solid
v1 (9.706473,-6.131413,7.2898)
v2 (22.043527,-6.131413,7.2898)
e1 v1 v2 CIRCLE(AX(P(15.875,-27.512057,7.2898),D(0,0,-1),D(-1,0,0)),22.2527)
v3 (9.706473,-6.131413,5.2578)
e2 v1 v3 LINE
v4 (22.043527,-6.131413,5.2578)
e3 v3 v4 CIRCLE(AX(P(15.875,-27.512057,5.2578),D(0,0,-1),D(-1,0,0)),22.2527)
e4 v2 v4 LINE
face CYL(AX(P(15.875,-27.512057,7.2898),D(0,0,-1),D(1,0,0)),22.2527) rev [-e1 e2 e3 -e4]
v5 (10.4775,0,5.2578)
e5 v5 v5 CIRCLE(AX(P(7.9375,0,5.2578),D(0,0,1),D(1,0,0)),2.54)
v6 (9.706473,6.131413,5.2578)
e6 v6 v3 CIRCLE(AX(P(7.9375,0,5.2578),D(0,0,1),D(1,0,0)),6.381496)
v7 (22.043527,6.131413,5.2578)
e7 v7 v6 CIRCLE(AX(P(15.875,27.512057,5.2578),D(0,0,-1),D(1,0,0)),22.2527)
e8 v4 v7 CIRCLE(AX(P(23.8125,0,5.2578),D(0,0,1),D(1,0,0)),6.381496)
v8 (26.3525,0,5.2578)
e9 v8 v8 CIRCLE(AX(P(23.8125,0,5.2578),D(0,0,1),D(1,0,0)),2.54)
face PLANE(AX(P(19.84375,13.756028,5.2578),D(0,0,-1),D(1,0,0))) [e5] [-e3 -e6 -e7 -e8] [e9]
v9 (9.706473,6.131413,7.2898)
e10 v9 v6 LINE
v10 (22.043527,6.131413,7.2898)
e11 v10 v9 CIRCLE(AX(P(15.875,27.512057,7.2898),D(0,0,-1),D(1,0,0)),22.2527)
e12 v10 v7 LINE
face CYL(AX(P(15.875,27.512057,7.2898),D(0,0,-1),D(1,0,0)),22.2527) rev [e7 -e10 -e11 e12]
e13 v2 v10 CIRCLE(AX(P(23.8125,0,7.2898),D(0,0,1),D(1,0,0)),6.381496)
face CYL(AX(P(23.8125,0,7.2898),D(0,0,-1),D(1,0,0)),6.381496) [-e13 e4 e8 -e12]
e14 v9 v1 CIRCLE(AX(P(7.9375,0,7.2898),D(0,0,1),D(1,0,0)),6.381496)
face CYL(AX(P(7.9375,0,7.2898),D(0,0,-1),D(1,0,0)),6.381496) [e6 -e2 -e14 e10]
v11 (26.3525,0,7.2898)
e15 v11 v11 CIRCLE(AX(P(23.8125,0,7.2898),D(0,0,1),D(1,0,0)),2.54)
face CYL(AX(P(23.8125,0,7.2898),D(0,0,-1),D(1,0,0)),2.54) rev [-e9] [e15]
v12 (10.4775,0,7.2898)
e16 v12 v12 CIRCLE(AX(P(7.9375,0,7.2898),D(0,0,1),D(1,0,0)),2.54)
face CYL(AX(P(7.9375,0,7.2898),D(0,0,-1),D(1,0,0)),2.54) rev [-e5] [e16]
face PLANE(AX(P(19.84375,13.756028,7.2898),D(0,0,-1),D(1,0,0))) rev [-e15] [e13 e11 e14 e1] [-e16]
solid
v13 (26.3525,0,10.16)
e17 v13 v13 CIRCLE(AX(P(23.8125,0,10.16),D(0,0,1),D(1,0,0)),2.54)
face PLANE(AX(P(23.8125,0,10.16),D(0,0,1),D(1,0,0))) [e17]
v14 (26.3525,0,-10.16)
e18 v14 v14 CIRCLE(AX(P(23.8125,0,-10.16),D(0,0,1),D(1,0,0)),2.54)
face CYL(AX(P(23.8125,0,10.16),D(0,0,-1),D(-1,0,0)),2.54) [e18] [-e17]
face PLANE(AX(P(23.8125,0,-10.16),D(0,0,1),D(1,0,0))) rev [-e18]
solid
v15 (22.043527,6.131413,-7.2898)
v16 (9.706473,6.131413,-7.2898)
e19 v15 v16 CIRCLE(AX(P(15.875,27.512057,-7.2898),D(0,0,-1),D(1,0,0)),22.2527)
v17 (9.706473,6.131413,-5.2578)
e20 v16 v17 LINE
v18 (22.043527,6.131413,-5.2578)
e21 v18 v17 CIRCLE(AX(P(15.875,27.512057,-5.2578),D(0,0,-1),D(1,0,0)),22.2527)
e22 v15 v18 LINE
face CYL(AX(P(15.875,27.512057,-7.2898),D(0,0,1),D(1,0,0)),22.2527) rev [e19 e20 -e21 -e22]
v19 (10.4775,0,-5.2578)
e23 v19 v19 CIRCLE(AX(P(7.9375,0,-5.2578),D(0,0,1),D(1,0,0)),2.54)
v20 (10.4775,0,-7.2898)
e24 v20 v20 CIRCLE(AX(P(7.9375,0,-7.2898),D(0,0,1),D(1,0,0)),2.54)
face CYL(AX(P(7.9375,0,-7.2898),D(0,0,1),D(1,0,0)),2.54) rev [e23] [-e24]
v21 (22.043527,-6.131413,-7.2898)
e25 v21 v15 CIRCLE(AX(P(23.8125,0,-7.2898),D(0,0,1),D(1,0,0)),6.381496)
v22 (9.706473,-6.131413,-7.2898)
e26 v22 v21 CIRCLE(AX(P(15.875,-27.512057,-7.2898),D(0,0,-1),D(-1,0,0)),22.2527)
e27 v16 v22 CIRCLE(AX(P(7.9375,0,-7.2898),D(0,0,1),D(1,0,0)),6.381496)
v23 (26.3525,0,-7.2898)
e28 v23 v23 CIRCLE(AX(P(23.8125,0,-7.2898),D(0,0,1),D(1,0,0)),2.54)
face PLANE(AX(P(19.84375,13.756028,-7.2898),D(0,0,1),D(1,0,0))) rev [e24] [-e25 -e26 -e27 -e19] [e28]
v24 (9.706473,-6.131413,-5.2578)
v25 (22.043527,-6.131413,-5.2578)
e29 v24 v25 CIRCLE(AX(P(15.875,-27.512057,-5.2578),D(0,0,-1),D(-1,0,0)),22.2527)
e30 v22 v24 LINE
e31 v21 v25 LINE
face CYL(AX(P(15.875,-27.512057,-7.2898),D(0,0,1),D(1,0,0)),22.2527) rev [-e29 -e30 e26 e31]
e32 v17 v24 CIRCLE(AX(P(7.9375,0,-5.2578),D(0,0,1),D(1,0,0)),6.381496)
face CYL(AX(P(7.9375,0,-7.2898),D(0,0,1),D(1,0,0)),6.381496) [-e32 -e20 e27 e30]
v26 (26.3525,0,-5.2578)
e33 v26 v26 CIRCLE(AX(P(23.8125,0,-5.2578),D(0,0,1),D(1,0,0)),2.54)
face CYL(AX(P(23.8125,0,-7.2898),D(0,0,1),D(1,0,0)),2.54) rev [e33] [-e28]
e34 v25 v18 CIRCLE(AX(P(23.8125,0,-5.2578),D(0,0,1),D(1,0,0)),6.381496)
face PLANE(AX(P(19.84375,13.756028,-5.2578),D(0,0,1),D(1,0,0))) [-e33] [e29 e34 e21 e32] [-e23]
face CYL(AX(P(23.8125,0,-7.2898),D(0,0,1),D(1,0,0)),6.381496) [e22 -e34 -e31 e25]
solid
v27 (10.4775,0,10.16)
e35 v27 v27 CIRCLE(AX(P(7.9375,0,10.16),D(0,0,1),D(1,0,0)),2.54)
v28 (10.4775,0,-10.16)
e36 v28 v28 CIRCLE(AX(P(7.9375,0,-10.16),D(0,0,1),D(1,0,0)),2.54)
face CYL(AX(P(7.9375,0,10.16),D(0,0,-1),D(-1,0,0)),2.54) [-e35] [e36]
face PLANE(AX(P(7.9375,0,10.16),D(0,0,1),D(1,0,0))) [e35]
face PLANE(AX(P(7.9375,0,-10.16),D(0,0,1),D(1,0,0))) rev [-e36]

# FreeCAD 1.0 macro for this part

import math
import FreeCAD as App
import Part
import Sketcher
Q = App.Units.Quantity

doc = App.newDocument("Part")
body = doc.addObject("PartDesign::Body", "Body")

# Sketch on XY plane
sketch1 = doc.addObject("Sketcher::SketchObject", "Sketch")
body.addObject(sketch1)
sketch1.AttachmentSupport = (doc.XY_Plane, [""])
sketch1.MapMode = "FlatFace"
sketch1.addGeometry([
    Part.Circle(App.Vector(-7.9, 0, 0), App.Vector(0, 0, 1), 5.1),
    Part.Circle(App.Vector(-7.9, 0, 0), App.Vector(0, 0, 1), 2.6),
], False)
sketch1.addConstraint([
    Sketcher.Constraint("Coincident", 1, 3, 0, 3),
    Sketcher.Constraint("PointOnObject", 0, 3, -1),
    Sketcher.Constraint("Diameter", 0, Q("0.4 in")),
    Sketcher.Constraint("Diameter", 1, Q("0.202 in")),
    Sketcher.Constraint("DistanceX", 0, 3, -1, 1, Q("0.3125 in")),
])
pad1 = doc.addObject("PartDesign::Pad", "Pad")
body.addObject(pad1)
pad1.Profile = sketch1
pad1.Length = Q("0.25 in")
pad1.Midplane = True
body2 = doc.addObject("PartDesign::Body", "Body001")

# Sketch on XY plane
sketch2 = doc.addObject("Sketcher::SketchObject", "Sketch001")
body2.addObject(sketch2)
sketch2.AttachmentSupport = (doc.getObject("XY_Plane001"), [""])
sketch2.MapMode = "FlatFace"
sketch2.addGeometry([
    Part.Circle(App.Vector(7.9, 0, 0), App.Vector(0, 0, 1), 5.1),
    Part.Circle(App.Vector(7.9, 0, 0), App.Vector(0, 0, 1), 2.6),
], False)
sketch2.addConstraint([
    Sketcher.Constraint("Coincident", 1, 3, 0, 3),
    Sketcher.Constraint("PointOnObject", 0, 3, -1),
    Sketcher.Constraint("Diameter", 0, Q("0.4 in")),
    Sketcher.Constraint("Diameter", 1, Q("0.202 in")),
    Sketcher.Constraint("DistanceX", -1, 1, 0, 3, Q("0.3125 in")),
])
pad2 = doc.addObject("PartDesign::Pad", "Pad001")
body2.addObject(pad2)
pad2.Profile = sketch2
pad2.Length = Q("0.25 in")
pad2.Midplane = True
body3 = doc.addObject("PartDesign::Body", "Body002")

# Sketch on XY plane
sketch3 = doc.addObject("Sketcher::SketchObject", "Sketch002")
body3.addObject(sketch3)
sketch3.AttachmentSupport = (doc.getObject("XY_Plane002"), [""])
sketch3.MapMode = "FlatFace"
sketch3.AttachmentOffset = App.Placement(App.Vector(0, 0, 0.125 * 25.4), App.Rotation())
sketch3.addGeometry([
    Part.ArcOfCircle(Part.Circle(App.Vector(-7.9, 0, 0), App.Vector(0, 0, 1), 7.3), math.radians(74), math.radians(286)),  # 0
    Part.ArcOfCircle(Part.Circle(App.Vector(0, -28.4, 0), App.Vector(0, 0, 1), 22.3), math.radians(74), math.radians(106)),  # 1
    Part.ArcOfCircle(Part.Circle(App.Vector(7.9, 0, 0), App.Vector(0, 0, 1), 7.3), math.radians(-106), math.radians(106)),  # 2
    Part.ArcOfCircle(Part.Circle(App.Vector(0, 28.4, 0), App.Vector(0, 0, 1), 22.3), math.radians(-106), math.radians(-74)),  # 3
    Part.Circle(App.Vector(-7.9, 0, 0), App.Vector(0, 0, 1), 2.5),  # 4
    Part.Circle(App.Vector(7.9, 0, 0), App.Vector(0, 0, 1), 2.5),  # 5
], False)
sketch3.addConstraint([
    Sketcher.Constraint("Tangent", 0, 2, 1, 2),
    Sketcher.Constraint("Tangent", 1, 1, 2, 1),
    Sketcher.Constraint("Tangent", 2, 2, 3, 2),
    Sketcher.Constraint("Tangent", 3, 1, 0, 1),
    Sketcher.Constraint("Coincident", 4, 3, 0, 3),
    Sketcher.Constraint("Coincident", 5, 3, 2, 3),
    Sketcher.Constraint("Equal", 0, 2),
    Sketcher.Constraint("Equal", 1, 3),
    Sketcher.Constraint("Equal", 4, 5),
    Sketcher.Constraint("Symmetric", 0, 3, 2, 3, -1, 1),
    Sketcher.Constraint("PointOnObject", 0, 3, -1),
    Sketcher.Constraint("Diameter", 4, Q("0.2 in")),
    Sketcher.Constraint("Radius", 0, Q("0.2855 in")),
    Sketcher.Constraint("Radius", 1, 22.2527),
    Sketcher.Constraint("DistanceX", 0, 3, -1, 1, Q("0.3125 in")),
])
pad3 = doc.addObject("PartDesign::Pad", "Pad002")
body3.addObject(pad3)
pad3.Profile = sketch3
pad3.Length = Q("0.08 in")
body4 = doc.addObject("PartDesign::Body", "Body003")
doc.recompute()

body2.Placement = App.Placement(App.Vector(15.875, 0, 0), App.Rotation(App.Vector(0, 0, 1), 0))
boolean = doc.addObject("PartDesign::Boolean", "Boolean")
body4.addObject(boolean)
boolean.Type = "Fuse"
boolean.addObjects([body2])
body5 = doc.addObject("PartDesign::Body", "Body004")

# Sketch on XY plane
sketch4 = doc.addObject("Sketcher::SketchObject", "Sketch003")
body5.addObject(sketch4)
sketch4.AttachmentSupport = (doc.getObject("XY_Plane004"), [""])
sketch4.MapMode = "FlatFace"
sketch4.AttachmentOffset = App.Placement(App.Vector(0, 0, -0.207 * 25.4), App.Rotation())
sketch4.addGeometry([
    Part.ArcOfCircle(Part.Circle(App.Vector(7.9, 0, 0), App.Vector(0, 0, 1), 6.4), math.radians(74), math.radians(286)),  # 0
    Part.ArcOfCircle(Part.Circle(App.Vector(15.9, -27.5, 0), App.Vector(0, 0, 1), 22.3), math.radians(74), math.radians(106)),  # 1
    Part.ArcOfCircle(Part.Circle(App.Vector(23.8, 0, 0), App.Vector(0, 0, 1), 6.4), math.radians(-106), math.radians(106)),  # 2
    Part.ArcOfCircle(Part.Circle(App.Vector(15.9, 27.5, 0), App.Vector(0, 0, 1), 22.3), math.radians(-106), math.radians(-74)),  # 3
    Part.Circle(App.Vector(7.9, 0, 0), App.Vector(0, 0, 1), 2.5),  # 4
    Part.Circle(App.Vector(23.8, 0, 0), App.Vector(0, 0, 1), 2.5),  # 5
], False)
sketch4.addConstraint([
    Sketcher.Constraint("Tangent", 0, 2, 1, 2),
    Sketcher.Constraint("Tangent", 1, 1, 2, 1),
    Sketcher.Constraint("Tangent", 2, 2, 3, 2),
    Sketcher.Constraint("Tangent", 3, 1, 0, 1),
    Sketcher.Constraint("Coincident", 4, 3, 0, 3),
    Sketcher.Constraint("Coincident", 5, 3, 2, 3),
    Sketcher.Constraint("Equal", 0, 2),
    Sketcher.Constraint("Equal", 1, 3),
    Sketcher.Constraint("Equal", 4, 5),
    Sketcher.Constraint("Symmetric", 1, 3, 3, 3, -1),
    Sketcher.Constraint("Diameter", 4, Q("0.2 in")),
    Sketcher.Constraint("Radius", 1, 22.2527),
    Sketcher.Constraint("DistanceX", -1, 1, 0, 3, Q("0.3125 in")),
    Sketcher.Constraint("DistanceX", -1, 1, 1, 3, Q("0.625 in")),
    Sketcher.Constraint("Radius", 0, 6.381496),
])
pad4 = doc.addObject("PartDesign::Pad", "Pad003")
body5.addObject(pad4)
pad4.Profile = sketch4
pad4.Length = Q("0.08 in")
pad4.Reversed = True
body6 = doc.addObject("PartDesign::Body", "Body005")
doc.recompute()

mirroring = doc.addObject("Part::Mirroring", "Mirroring")
mirroring.Source = body3
mirroring.Base = App.Vector(0, 0, 0)
mirroring.Normal = App.Vector(0, 0, 1)
body6.BaseFeature = mirroring
doc.recompute()
body7 = doc.addObject("PartDesign::Body", "Body006")
doc.recompute()

mirroring2 = doc.addObject("Part::Mirroring", "Mirroring001")
mirroring2.Source = body5
mirroring2.Base = App.Vector(0, 0, 0)
mirroring2.Normal = App.Vector(0, 0, 1)
body7.BaseFeature = mirroring2
doc.recompute()
body8 = doc.addObject("PartDesign::Body", "Body007")

# Sketch on XY plane
sketch5 = doc.addObject("Sketcher::SketchObject", "Sketch004")
body8.addObject(sketch5)
sketch5.AttachmentSupport = (doc.getObject("XY_Plane007"), [""])
sketch5.MapMode = "FlatFace"
sketch5.addGeometry(Part.Circle(App.Vector(7.9, 0, 0), App.Vector(0, 0, 1), 2.5), False)
sketch5.addConstraint([
    Sketcher.Constraint("PointOnObject", 0, 3, -1),
    Sketcher.Constraint("Diameter", 0, Q("0.2 in")),
    Sketcher.Constraint("DistanceX", -1, 1, 0, 3, Q("0.3125 in")),
])
pad5 = doc.addObject("PartDesign::Pad", "Pad004")
body8.addObject(pad5)
pad5.Profile = sketch5
pad5.Type = "TwoLengths"
pad5.Length = Q("0.4 in")
pad5.Length2 = Q("0.4 in")
body9 = doc.addObject("PartDesign::Body", "Body008")

# Sketch on XY plane
sketch6 = doc.addObject("Sketcher::SketchObject", "Sketch005")
body9.addObject(sketch6)
sketch6.AttachmentSupport = (doc.getObject("XY_Plane008"), [""])
sketch6.MapMode = "FlatFace"
sketch6.addGeometry(Part.Circle(App.Vector(23.8, 0, 0), App.Vector(0, 0, 1), 2.5), False)
sketch6.addConstraint([
    Sketcher.Constraint("PointOnObject", 0, 3, -1),
    Sketcher.Constraint("Diameter", 0, Q("0.2 in")),
    Sketcher.Constraint("DistanceX", -1, 1, 0, 3, Q("0.9375 in")),
])
pad6 = doc.addObject("PartDesign::Pad", "Pad005")
body9.addObject(pad6)
pad6.Profile = sketch6
pad6.Type = "TwoLengths"
pad6.Length = Q("0.4 in")
pad6.Length2 = Q("0.4 in")
body.Visibility = False
body3.Visibility = False
body4.Visibility = False
body6.Visibility = False
mirroring.Visibility = False
mirroring2.Visibility = False

doc.recompute()
